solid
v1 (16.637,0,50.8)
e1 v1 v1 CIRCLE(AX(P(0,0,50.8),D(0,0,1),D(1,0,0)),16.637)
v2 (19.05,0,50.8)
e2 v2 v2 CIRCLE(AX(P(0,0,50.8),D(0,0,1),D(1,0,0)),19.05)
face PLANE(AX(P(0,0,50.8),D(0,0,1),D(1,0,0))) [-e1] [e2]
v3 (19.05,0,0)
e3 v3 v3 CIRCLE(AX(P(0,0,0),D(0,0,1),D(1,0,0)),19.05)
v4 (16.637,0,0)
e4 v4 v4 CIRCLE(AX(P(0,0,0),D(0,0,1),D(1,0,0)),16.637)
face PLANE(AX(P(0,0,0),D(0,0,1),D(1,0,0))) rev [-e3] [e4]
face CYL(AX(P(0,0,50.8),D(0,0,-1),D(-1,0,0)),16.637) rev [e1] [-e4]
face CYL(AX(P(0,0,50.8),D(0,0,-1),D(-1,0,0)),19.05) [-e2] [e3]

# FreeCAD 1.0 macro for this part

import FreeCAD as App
import Part
import Sketcher
Q = App.Units.Quantity

doc = App.newDocument("Part")
body = doc.addObject("PartDesign::Body", "Body")

sketch1 = doc.addObject("Sketcher::SketchObject", "Sketch")
body.addObject(sketch1)
sketch1.AttachmentSupport = (doc.XY_Plane, [""])
sketch1.MapMode = "FlatFace"
sketch1.addGeometry([
    Part.Circle(App.Vector(0, 0, 0), App.Vector(0, 0, 1), 19.05),
    Part.Circle(App.Vector(0, 0, 0), App.Vector(0, 0, 1), 16.637),
], False)
sketch1.addConstraint([
    Sketcher.Constraint("Coincident", 0, 3, -1, 1),
    Sketcher.Constraint("Coincident", 1, 3, -1, 1),
    Sketcher.Constraint("Diameter", 0, Q("1.5 in")),
    Sketcher.Constraint("Diameter", 1, Q("1.31 in")),
])
pad1 = doc.addObject("PartDesign::Pad", "Pad")
body.addObject(pad1)
pad1.Profile = sketch1
pad1.Length = Q("2 in")

doc.recompute()
